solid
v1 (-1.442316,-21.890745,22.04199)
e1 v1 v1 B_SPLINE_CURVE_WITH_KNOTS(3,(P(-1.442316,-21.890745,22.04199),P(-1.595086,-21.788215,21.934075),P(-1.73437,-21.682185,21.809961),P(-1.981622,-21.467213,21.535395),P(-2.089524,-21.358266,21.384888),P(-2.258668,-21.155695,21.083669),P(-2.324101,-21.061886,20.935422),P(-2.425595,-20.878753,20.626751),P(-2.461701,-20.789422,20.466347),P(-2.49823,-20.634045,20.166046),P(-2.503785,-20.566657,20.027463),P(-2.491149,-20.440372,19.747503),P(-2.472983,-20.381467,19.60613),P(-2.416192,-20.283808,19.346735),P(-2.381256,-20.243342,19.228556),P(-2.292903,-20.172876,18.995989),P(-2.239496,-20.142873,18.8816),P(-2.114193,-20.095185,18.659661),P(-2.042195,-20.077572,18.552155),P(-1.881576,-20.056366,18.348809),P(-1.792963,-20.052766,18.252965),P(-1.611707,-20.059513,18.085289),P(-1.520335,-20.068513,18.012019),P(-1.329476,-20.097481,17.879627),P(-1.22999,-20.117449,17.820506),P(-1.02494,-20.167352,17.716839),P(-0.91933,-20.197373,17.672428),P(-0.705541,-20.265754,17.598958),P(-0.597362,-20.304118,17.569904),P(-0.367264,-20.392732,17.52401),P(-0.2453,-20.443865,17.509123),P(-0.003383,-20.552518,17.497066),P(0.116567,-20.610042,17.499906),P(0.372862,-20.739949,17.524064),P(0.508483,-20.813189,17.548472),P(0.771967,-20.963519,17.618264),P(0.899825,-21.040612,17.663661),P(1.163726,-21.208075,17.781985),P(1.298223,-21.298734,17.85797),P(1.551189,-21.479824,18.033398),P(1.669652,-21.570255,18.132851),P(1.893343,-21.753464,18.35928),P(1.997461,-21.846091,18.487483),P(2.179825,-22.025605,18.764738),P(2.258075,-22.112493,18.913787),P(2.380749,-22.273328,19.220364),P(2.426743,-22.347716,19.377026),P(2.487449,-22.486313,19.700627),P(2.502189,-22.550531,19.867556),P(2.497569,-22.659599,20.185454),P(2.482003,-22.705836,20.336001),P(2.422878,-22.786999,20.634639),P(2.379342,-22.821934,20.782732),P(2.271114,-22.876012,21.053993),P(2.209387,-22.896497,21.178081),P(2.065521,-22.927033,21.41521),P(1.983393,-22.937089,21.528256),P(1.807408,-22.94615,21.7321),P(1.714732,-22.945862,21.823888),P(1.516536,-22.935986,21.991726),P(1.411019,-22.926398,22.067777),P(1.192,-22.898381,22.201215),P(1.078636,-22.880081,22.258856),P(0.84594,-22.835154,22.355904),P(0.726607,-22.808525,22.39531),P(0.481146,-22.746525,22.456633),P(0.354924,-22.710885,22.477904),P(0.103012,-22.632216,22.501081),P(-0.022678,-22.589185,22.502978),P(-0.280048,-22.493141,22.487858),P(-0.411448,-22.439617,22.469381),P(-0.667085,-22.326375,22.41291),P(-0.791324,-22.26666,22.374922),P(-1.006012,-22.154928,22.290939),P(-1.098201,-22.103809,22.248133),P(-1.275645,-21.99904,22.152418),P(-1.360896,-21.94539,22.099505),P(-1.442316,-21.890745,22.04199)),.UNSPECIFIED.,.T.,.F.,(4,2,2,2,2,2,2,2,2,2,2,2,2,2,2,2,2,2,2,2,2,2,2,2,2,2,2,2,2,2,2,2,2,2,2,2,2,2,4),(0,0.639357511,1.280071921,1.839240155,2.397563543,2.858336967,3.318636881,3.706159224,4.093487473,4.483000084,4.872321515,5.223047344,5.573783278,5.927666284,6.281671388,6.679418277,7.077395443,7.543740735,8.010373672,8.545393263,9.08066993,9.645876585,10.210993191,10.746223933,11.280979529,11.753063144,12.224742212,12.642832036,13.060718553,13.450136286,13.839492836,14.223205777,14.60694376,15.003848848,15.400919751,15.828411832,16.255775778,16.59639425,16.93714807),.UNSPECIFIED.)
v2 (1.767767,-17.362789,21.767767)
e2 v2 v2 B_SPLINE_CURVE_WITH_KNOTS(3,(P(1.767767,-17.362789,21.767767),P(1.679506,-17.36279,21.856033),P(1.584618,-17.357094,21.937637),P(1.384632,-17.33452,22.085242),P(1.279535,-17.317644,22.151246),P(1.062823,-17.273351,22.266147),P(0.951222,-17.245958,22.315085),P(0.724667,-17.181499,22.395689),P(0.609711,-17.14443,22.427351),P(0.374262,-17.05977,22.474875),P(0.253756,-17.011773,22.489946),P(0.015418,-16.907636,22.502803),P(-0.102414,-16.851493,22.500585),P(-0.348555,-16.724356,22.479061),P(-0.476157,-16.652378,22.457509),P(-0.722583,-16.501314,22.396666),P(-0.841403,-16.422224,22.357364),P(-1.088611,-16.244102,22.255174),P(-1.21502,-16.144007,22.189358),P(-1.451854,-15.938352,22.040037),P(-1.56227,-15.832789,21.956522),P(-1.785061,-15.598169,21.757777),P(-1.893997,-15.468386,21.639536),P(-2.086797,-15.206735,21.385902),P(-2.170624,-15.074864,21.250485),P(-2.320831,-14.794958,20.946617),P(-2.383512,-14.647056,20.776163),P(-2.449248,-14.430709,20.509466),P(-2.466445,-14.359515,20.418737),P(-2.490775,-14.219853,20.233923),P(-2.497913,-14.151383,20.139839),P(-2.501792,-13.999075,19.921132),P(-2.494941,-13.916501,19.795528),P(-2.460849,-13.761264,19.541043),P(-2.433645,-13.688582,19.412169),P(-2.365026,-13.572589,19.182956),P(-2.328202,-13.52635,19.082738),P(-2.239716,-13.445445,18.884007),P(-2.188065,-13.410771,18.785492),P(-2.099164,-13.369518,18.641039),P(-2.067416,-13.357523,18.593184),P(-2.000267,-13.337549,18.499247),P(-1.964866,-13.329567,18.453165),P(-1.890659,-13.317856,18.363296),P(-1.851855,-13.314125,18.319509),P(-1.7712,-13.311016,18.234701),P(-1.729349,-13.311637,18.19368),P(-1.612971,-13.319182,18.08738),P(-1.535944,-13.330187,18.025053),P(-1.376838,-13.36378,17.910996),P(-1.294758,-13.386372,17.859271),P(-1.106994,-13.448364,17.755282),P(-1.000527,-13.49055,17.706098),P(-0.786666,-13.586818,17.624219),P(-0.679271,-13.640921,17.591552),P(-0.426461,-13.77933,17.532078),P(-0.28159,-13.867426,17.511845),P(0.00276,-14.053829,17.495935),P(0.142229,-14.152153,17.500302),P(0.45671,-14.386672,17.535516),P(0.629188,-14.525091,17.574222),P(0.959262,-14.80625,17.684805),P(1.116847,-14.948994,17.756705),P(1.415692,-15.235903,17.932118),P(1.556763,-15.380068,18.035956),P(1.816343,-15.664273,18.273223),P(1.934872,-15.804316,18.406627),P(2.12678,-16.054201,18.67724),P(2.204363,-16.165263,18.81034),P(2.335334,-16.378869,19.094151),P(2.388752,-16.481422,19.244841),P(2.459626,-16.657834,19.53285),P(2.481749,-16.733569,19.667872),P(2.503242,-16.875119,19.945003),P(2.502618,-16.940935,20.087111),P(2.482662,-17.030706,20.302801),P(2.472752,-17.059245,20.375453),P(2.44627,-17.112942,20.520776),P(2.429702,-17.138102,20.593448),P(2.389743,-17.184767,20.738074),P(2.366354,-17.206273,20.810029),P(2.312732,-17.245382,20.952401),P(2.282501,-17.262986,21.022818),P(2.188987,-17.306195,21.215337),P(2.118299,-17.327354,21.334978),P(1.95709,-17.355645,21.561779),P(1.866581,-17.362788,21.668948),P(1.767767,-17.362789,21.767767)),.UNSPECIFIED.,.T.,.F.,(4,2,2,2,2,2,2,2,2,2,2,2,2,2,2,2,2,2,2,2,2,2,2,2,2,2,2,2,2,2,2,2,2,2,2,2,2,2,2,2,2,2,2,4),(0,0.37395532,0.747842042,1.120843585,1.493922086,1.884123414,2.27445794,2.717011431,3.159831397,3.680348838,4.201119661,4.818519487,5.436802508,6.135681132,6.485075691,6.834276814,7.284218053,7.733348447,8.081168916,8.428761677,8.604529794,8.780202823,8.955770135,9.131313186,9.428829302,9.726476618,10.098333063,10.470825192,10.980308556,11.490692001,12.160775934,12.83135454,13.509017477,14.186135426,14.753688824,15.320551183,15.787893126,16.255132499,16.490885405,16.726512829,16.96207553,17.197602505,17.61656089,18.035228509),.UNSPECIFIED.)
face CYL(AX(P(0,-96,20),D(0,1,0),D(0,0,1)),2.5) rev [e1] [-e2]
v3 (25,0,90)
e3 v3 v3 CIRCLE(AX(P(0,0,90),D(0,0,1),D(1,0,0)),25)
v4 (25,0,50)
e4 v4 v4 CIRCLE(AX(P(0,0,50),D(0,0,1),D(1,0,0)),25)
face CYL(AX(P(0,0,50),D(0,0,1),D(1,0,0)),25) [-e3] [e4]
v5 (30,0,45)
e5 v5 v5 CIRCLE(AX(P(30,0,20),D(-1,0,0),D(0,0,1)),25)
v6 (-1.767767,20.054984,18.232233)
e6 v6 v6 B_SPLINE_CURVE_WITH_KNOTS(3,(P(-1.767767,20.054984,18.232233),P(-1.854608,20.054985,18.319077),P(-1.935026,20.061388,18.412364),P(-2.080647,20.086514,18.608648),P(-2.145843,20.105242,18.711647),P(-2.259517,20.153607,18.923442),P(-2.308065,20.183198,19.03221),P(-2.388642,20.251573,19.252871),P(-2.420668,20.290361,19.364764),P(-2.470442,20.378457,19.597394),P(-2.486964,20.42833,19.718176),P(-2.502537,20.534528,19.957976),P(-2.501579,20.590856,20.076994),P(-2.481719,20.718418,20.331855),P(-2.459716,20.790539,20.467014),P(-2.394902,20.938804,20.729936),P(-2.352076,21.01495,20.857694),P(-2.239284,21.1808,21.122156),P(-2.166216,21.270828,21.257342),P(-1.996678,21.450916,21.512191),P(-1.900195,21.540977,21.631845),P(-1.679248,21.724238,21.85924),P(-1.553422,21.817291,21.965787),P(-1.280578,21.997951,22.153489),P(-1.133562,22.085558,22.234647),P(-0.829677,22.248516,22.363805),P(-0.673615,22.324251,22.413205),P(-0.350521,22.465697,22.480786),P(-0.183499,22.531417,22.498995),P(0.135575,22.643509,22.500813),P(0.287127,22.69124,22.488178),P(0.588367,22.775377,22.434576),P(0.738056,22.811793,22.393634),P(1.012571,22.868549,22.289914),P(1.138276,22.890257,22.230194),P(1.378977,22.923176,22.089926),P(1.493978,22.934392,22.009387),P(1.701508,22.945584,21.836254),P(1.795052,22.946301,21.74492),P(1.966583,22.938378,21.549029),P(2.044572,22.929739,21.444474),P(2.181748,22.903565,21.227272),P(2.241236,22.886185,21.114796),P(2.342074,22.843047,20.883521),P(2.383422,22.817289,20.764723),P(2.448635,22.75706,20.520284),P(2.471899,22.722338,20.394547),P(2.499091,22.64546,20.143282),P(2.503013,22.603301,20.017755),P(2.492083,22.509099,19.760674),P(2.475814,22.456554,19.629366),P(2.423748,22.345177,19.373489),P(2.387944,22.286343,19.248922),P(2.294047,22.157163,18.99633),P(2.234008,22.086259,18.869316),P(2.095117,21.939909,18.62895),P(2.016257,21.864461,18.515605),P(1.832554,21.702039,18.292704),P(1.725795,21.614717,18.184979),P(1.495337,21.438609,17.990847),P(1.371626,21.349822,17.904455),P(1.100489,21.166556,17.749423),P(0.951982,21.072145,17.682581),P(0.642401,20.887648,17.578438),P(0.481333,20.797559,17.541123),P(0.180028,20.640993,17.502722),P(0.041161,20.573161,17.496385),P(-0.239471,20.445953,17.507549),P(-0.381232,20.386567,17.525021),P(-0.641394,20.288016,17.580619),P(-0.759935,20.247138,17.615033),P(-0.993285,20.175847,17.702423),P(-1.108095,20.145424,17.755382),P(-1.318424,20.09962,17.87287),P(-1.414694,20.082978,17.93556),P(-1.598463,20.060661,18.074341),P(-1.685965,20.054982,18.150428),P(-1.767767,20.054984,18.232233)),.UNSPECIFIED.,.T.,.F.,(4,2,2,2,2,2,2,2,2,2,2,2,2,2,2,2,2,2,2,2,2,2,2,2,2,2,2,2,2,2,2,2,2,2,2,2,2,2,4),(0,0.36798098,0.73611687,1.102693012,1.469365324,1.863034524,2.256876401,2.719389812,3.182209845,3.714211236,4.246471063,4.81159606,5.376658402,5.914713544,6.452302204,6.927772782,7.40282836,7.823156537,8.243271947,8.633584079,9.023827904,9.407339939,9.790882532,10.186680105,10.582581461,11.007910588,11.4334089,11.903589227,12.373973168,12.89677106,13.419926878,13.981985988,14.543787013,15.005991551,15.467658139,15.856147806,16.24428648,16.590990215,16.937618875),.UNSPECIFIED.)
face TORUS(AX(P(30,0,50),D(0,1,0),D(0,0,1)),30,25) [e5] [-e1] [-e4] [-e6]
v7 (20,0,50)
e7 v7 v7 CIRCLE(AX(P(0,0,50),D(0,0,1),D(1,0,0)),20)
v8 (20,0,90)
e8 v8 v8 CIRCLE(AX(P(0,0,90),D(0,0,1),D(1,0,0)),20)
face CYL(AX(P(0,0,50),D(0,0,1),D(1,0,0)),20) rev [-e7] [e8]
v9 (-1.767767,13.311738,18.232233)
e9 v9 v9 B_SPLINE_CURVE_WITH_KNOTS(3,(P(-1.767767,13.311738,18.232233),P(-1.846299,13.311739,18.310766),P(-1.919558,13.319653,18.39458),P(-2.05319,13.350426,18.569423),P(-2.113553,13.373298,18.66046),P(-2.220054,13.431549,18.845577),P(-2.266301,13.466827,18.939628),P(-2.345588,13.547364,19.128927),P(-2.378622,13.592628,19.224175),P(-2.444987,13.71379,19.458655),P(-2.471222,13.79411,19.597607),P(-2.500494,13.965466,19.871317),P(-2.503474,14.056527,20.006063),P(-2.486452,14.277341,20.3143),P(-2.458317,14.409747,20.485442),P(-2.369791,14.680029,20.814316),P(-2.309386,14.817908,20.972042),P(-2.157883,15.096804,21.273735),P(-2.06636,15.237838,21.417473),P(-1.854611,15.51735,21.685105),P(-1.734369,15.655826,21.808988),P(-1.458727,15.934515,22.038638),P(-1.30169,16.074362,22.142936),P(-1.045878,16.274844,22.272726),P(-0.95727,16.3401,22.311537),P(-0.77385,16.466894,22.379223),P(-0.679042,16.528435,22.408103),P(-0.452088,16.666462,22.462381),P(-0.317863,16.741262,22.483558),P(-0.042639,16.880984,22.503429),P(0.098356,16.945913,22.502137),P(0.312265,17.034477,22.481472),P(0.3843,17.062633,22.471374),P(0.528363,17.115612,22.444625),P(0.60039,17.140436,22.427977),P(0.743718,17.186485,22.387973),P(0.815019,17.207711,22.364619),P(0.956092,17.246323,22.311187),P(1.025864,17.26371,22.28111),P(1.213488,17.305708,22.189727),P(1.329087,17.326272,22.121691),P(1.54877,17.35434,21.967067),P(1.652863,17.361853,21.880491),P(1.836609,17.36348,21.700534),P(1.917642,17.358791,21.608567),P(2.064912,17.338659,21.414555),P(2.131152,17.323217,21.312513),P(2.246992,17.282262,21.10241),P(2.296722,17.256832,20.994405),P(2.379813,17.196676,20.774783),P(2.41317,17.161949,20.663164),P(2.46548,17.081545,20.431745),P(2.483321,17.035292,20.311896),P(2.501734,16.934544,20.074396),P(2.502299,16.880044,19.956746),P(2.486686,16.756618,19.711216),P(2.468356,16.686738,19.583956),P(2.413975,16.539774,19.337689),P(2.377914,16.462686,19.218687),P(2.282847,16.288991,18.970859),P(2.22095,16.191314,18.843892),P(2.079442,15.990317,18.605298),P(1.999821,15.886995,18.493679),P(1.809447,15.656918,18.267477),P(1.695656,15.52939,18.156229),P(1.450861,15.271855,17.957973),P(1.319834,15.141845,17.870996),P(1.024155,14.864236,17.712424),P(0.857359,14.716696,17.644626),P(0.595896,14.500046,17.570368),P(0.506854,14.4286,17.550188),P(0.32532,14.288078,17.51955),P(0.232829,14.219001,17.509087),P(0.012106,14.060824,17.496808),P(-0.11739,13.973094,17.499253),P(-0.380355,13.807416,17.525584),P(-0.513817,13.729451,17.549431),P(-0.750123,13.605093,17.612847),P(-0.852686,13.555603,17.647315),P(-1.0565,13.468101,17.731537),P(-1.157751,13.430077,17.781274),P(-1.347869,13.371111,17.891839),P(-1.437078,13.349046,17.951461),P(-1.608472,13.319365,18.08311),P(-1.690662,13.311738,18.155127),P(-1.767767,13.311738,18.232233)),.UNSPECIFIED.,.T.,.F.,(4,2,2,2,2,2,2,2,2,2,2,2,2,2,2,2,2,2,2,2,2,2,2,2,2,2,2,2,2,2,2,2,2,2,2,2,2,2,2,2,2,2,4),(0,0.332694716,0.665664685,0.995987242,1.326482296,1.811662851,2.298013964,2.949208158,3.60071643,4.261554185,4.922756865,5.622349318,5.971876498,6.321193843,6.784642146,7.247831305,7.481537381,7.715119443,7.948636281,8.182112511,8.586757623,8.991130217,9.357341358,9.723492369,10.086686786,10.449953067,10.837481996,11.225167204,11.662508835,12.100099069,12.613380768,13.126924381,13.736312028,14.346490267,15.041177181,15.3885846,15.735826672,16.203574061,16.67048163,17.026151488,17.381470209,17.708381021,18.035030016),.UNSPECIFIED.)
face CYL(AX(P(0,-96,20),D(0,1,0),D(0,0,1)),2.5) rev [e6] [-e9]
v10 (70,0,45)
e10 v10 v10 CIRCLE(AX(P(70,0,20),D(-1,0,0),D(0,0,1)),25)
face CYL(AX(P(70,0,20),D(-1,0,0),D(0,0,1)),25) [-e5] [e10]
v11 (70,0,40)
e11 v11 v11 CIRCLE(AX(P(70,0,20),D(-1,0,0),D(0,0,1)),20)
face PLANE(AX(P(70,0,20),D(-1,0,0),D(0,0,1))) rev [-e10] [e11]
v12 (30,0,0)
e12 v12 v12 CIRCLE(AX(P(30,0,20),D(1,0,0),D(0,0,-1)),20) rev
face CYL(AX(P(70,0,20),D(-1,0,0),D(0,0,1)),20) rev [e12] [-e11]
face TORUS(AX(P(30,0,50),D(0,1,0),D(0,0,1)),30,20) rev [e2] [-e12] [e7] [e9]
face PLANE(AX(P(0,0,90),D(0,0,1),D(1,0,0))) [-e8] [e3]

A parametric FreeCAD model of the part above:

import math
import FreeCAD as App
import Part
import Sketcher

V = App.Vector
Q = App.Units.Quantity


def faces_at(feature, points):
    """Names of the faces that lie closest to the given points."""
    faces = feature.Shape.Faces
    near = lambda p: min(range(len(faces)), key=lambda i: faces[i].distToShape(Part.Vertex(*p))[0])
    return sorted({f"Face{near(p) + 1}" for p in points})

doc = App.newDocument("Part")
body = doc.addObject("PartDesign::Body", "Body")

sketch1 = body.newObject("Sketcher::SketchObject", "Sketch")
sketch1.AttachmentSupport = (doc.getObject("XY_Plane"), [""])
sketch1.MapMode = "FlatFace"
sketch1.AttachmentOffset = App.Placement(V(0, 0, 90), App.Rotation())
sketch1.addGeometry(Part.Circle(V(0, 0, 0), V(0, 0, 1), 25), False)
sketch1.addConstraint([
    Sketcher.Constraint("Coincident", 0, 3, -1, 1),
    Sketcher.Constraint("Diameter", 0, Q("50 mm")),
])

sketch2 = body.newObject("Sketcher::SketchObject", "Sketch001")
sketch2.AttachmentSupport = (doc.getObject("XZ_Plane"), [""])
sketch2.MapMode = "FlatFace"
sketch2.addGeometry([
    Part.LineSegment(V(0, 90, 0), V(0, 50, 0)),
    Part.ArcOfCircle(Part.Circle(V(30, 50, 0), V(0, 0, 1), 30), math.radians(180), math.radians(270)),
    Part.LineSegment(V(30, 20, 0), V(70, 20, 0)),
], False)
sketch2.addConstraint([
    Sketcher.Constraint("Tangent", 0, 2, 1, 1),
    Sketcher.Constraint("Tangent", 1, 2, 2, 1),
    Sketcher.Constraint("Vertical", 0),
    Sketcher.Constraint("Horizontal", 2),
    Sketcher.Constraint("PointOnObject", 0, 1, -2),
    Sketcher.Constraint("Equal", 2, 0),
    Sketcher.Constraint("Radius", 1, Q("30 mm")),
    Sketcher.Constraint("DistanceX", 2, 1, 2, 2, Q("40 mm")),
    Sketcher.Constraint("DistanceY", -1, 1, 1, 3, Q("50 mm")),
])
doc.recompute()

additivepipe = body.newObject("PartDesign::AdditivePipe", "AdditivePipe")
additivepipe.Profile = sketch1
additivepipe.Spine = (sketch2, ["Edge1", "Edge2", "Edge3"])
doc.recompute()

thickness = body.newObject("PartDesign::Thickness", "Thickness")
thickness.Base = (additivepipe, faces_at(additivepipe, [(0, 0, 90), (70, 0, 20)]))
thickness.Value = 5
thickness.Reversed = True
thickness.Join = "Intersection"

sketch3 = body.newObject("Sketcher::SketchObject", "Sketch002")
sketch3.AttachmentSupport = (doc.getObject("XZ_Plane"), [""])
sketch3.MapMode = "FlatFace"
sketch3.addGeometry(Part.Circle(V(0, 20, 0), V(0, 0, 1), 2.5), False)
sketch3.addConstraint([
    Sketcher.Constraint("PointOnObject", 0, 3, -2),
    Sketcher.Constraint("Diameter", 0, Q("5 mm")),
    Sketcher.Constraint("DistanceY", -1, 1, 0, 3, Q("20 mm")),
])
pocket1 = body.newObject("PartDesign::Pocket", "Pocket")
pocket1.Profile = sketch3
pocket1.Type = "ThroughAll"
pocket1.Midplane = True

doc.recompute()
